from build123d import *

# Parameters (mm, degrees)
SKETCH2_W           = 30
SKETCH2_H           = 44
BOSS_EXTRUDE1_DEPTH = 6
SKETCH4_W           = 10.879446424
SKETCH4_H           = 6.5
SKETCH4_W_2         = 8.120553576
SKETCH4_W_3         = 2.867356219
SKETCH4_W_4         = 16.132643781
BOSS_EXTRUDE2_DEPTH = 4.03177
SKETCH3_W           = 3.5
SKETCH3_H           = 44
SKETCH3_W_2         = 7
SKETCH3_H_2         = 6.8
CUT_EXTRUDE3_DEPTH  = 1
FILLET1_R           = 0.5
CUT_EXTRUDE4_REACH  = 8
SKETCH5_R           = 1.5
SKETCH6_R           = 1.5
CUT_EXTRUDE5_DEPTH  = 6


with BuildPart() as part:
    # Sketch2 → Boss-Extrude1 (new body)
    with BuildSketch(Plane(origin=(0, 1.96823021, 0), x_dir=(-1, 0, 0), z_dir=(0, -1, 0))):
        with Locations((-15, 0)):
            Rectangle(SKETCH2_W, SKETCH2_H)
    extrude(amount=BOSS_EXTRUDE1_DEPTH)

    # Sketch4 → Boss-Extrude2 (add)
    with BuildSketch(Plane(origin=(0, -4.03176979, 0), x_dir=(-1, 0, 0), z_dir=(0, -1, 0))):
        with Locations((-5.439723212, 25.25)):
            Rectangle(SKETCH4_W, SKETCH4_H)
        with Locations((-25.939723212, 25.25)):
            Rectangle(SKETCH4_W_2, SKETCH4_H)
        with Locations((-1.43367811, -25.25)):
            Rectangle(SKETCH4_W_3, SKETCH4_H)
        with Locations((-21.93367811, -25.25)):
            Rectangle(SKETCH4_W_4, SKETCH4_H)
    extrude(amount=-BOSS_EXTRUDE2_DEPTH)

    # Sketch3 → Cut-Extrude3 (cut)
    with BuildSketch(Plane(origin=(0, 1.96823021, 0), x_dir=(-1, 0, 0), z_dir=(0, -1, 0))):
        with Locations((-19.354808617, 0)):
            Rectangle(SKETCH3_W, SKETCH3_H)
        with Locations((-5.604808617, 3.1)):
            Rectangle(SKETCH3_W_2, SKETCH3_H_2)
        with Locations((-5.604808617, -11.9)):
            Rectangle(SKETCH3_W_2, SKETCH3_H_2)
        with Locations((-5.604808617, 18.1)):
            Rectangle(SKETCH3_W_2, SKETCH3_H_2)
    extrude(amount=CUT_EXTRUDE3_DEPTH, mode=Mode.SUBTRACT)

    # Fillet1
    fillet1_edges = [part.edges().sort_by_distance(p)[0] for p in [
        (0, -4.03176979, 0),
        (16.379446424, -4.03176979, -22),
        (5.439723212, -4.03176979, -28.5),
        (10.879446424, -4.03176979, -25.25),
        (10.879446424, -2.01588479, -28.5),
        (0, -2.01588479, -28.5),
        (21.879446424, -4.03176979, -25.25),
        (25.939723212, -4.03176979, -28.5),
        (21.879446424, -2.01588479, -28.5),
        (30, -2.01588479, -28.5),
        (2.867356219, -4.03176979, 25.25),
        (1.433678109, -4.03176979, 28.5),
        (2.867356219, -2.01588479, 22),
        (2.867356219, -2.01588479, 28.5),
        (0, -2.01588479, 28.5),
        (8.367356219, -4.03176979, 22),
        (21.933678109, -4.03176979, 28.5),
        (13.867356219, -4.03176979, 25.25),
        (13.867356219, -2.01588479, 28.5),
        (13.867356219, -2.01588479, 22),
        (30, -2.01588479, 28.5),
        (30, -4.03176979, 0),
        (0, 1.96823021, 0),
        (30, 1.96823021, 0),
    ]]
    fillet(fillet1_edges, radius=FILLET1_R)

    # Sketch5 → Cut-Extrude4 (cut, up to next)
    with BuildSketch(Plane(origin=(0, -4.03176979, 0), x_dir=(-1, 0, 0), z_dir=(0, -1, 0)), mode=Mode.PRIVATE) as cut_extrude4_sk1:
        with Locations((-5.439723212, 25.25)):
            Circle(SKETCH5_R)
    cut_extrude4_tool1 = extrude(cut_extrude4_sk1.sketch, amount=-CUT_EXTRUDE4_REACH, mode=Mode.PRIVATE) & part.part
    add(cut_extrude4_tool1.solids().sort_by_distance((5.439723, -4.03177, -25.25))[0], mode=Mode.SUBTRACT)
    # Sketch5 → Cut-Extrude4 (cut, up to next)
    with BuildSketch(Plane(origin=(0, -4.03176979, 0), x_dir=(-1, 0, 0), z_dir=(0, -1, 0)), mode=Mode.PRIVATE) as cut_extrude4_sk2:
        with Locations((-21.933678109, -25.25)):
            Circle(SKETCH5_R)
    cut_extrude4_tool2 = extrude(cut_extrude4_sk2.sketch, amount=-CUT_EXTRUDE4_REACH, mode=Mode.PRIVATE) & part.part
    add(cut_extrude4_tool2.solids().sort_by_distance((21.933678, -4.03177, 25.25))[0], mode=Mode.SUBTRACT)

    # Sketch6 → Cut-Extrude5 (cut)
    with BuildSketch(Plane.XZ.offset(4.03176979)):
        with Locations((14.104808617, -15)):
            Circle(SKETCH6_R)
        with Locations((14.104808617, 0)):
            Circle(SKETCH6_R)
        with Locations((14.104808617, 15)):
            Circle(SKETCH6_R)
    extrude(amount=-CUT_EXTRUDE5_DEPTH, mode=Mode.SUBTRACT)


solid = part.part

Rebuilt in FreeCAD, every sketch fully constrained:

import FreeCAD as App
import Part
import Sketcher
from FreeCAD import Vector
Q = App.Units.Quantity


def edges_at(feature, points):
    """Names of the edges that pass closest to the given points."""
    edges = feature.Shape.Edges
    near = lambda p: min(range(len(edges)), key=lambda i: edges[i].distToShape(Part.Vertex(*p))[0])
    return sorted({f"Edge{near(p) + 1}" for p in points})

doc = App.newDocument("Part")
body = doc.addObject("PartDesign::Body", "Body")

# Sketch on XZ plane
sketch1 = body.newObject("Sketcher::SketchObject", "Sketch")
sketch1.AttachmentSupport = (doc.getObject("XZ_Plane"), [""])
sketch1.MapMode = "FlatFace"
sketch1.AttachmentOffset = App.Placement(Vector(0, 0, -1.96823), App.Rotation())
sketch1.addGeometry([
    Part.LineSegment(Vector(30, -22, 0), Vector(30, 22, 0)),
    Part.LineSegment(Vector(30, 22, 0), Vector(0, 22, 0)),
    Part.LineSegment(Vector(0, 22, 0), Vector(0, -22, 0)),
    Part.LineSegment(Vector(0, -22, 0), Vector(30, -22, 0)),
], False)
sketch1.addConstraint([
    Sketcher.Constraint("Coincident", 0, 2, 1, 1),
    Sketcher.Constraint("Coincident", 1, 2, 2, 1),
    Sketcher.Constraint("Coincident", 2, 2, 3, 1),
    Sketcher.Constraint("Coincident", 3, 2, 0, 1),
    Sketcher.Constraint("Vertical", 0),
    Sketcher.Constraint("Horizontal", 1),
    Sketcher.Constraint("Vertical", 2),
    Sketcher.Constraint("Horizontal", 3),
    Sketcher.Constraint("Symmetric", 1, 2, 2, 2, -1, 1),
    Sketcher.Constraint("DistanceX", 1, 2, 1, 1, Q("30 mm")),
    Sketcher.Constraint("DistanceY", 0, 1, 0, 2, Q("44 mm")),
])
pad1 = body.newObject("PartDesign::Pad", "Pad")
pad1.Profile = sketch1
pad1.Length = 6

# Sketch on XZ plane
sketch2 = body.newObject("Sketcher::SketchObject", "Sketch001")
sketch2.AttachmentSupport = (doc.getObject("XZ_Plane"), [""])
sketch2.MapMode = "FlatFace"
sketch2.AttachmentOffset = App.Placement(Vector(0, 0, 4.03177), App.Rotation())
sketch2.addGeometry([
    Part.LineSegment(Vector(10.9, -28.5, 0), Vector(10.9, -22, 0)),  # 0
    Part.LineSegment(Vector(10.9, -22, 0), Vector(0, -22, 0)),  # 1
    Part.LineSegment(Vector(0, -22, 0), Vector(0, -28.5, 0)),  # 2
    Part.LineSegment(Vector(0, -28.5, 0), Vector(10.9, -28.5, 0)),  # 3
    Part.LineSegment(Vector(30, -28.5, 0), Vector(30, -22, 0)),  # 4
    Part.LineSegment(Vector(30, -22, 0), Vector(21.9, -22, 0)),  # 5
    Part.LineSegment(Vector(21.9, -22, 0), Vector(21.9, -28.5, 0)),  # 6
    Part.LineSegment(Vector(21.9, -28.5, 0), Vector(30, -28.5, 0)),  # 7
    Part.LineSegment(Vector(2.9, 22, 0), Vector(2.9, 28.5, 0)),  # 8
    Part.LineSegment(Vector(2.9, 28.5, 0), Vector(0, 28.5, 0)),  # 9
    Part.LineSegment(Vector(0, 28.5, 0), Vector(0, 22, 0)),  # 10
    Part.LineSegment(Vector(0, 22, 0), Vector(2.9, 22, 0)),  # 11
    Part.LineSegment(Vector(30, 22, 0), Vector(30, 28.5, 0)),  # 12
    Part.LineSegment(Vector(30, 28.5, 0), Vector(13.9, 28.5, 0)),  # 13
    Part.LineSegment(Vector(13.9, 28.5, 0), Vector(13.9, 22, 0)),  # 14
    Part.LineSegment(Vector(13.9, 22, 0), Vector(30, 22, 0)),  # 15
], False)
sketch2.addConstraint([
    Sketcher.Constraint("Coincident", 0, 2, 1, 1),
    Sketcher.Constraint("Coincident", 1, 2, 2, 1),
    Sketcher.Constraint("Coincident", 2, 2, 3, 1),
    Sketcher.Constraint("Coincident", 3, 2, 0, 1),
    Sketcher.Constraint("Coincident", 4, 2, 5, 1),
    Sketcher.Constraint("Coincident", 5, 2, 6, 1),
    Sketcher.Constraint("Coincident", 6, 2, 7, 1),
    Sketcher.Constraint("Coincident", 7, 2, 4, 1),
    Sketcher.Constraint("Coincident", 8, 2, 9, 1),
    Sketcher.Constraint("Coincident", 9, 2, 10, 1),
    Sketcher.Constraint("Coincident", 10, 2, 11, 1),
    Sketcher.Constraint("Coincident", 11, 2, 8, 1),
    Sketcher.Constraint("Coincident", 12, 2, 13, 1),
    Sketcher.Constraint("Coincident", 13, 2, 14, 1),
    Sketcher.Constraint("Coincident", 14, 2, 15, 1),
    Sketcher.Constraint("Coincident", 15, 2, 12, 1),
    Sketcher.Constraint("Vertical", 0),
    Sketcher.Constraint("Horizontal", 1),
    Sketcher.Constraint("Vertical", 2),
    Sketcher.Constraint("Horizontal", 3),
    Sketcher.Constraint("Vertical", 4),
    Sketcher.Constraint("Horizontal", 5),
    Sketcher.Constraint("Vertical", 6),
    Sketcher.Constraint("Horizontal", 7),
    Sketcher.Constraint("Vertical", 8),
    Sketcher.Constraint("Horizontal", 9),
    Sketcher.Constraint("Vertical", 10),
    Sketcher.Constraint("Horizontal", 11),
    Sketcher.Constraint("Vertical", 12),
    Sketcher.Constraint("Horizontal", 13),
    Sketcher.Constraint("Vertical", 14),
    Sketcher.Constraint("Horizontal", 15),
    Sketcher.Constraint("Symmetric", 2, 2, 9, 2, -1, 1),
    Sketcher.Constraint("Symmetric", 1, 2, 10, 2, -1),
    Sketcher.Constraint("Symmetric", 7, 2, 12, 2, -1),
    Sketcher.Constraint("Horizontal", 1, 2, 4, 2),
    Sketcher.Constraint("Horizontal", 3, 2, 6, 2),
    Sketcher.Constraint("Horizontal", 11, 2, 14, 2),
    Sketcher.Constraint("DistanceY", 0, 1, 0, 2, Q("6.5 mm")),
    Sketcher.Constraint("DistanceY", 0, 2, -1, 1, Q("22 mm")),
    Sketcher.Constraint("DistanceX", -1, 1, 4, 2, Q("30 mm")),
    Sketcher.Constraint("DistanceX", 0, 2, 5, 2, Q("11 mm")),
    Sketcher.Constraint("DistanceX", 8, 2, 13, 2, Q("11 mm")),
    Sketcher.Constraint("DistanceX", 1, 2, 1, 1, Q("10.879446 mm")),
    Sketcher.Constraint("DistanceX", 9, 2, 9, 1, Q("2.867356 mm")),
])
pad2 = body.newObject("PartDesign::Pad", "Pad001")
pad2.Profile = sketch2
pad2.Length = 4.03177
pad2.Reversed = True

# Sketch on XZ plane
sketch3 = body.newObject("Sketcher::SketchObject", "Sketch002")
sketch3.AttachmentSupport = (doc.getObject("XZ_Plane"), [""])
sketch3.MapMode = "FlatFace"
sketch3.AttachmentOffset = App.Placement(Vector(0, 0, -1.96823), App.Rotation())
sketch3.addGeometry([
    Part.LineSegment(Vector(21.1, -22, 0), Vector(21.1, 22, 0)),  # 0
    Part.LineSegment(Vector(21.1, 22, 0), Vector(17.6, 22, 0)),  # 1
    Part.LineSegment(Vector(17.6, 22, 0), Vector(17.6, -22, 0)),  # 2
    Part.LineSegment(Vector(17.6, -22, 0), Vector(21.1, -22, 0)),  # 3
    Part.LineSegment(Vector(9.1, -6.5, 0), Vector(9.1, 0.3, 0)),  # 4
    Part.LineSegment(Vector(9.1, 0.3, 0), Vector(2.1, 0.3, 0)),  # 5
    Part.LineSegment(Vector(2.1, 0.3, 0), Vector(2.1, -6.5, 0)),  # 6
    Part.LineSegment(Vector(2.1, -6.5, 0), Vector(9.1, -6.5, 0)),  # 7
    Part.LineSegment(Vector(9.1, 8.5, 0), Vector(9.1, 15.3, 0)),  # 8
    Part.LineSegment(Vector(9.1, 15.3, 0), Vector(2.1, 15.3, 0)),  # 9
    Part.LineSegment(Vector(2.1, 15.3, 0), Vector(2.1, 8.5, 0)),  # 10
    Part.LineSegment(Vector(2.1, 8.5, 0), Vector(9.1, 8.5, 0)),  # 11
    Part.LineSegment(Vector(9.1, -21.5, 0), Vector(9.1, -14.7, 0)),  # 12
    Part.LineSegment(Vector(9.1, -14.7, 0), Vector(2.1, -14.7, 0)),  # 13
    Part.LineSegment(Vector(2.1, -14.7, 0), Vector(2.1, -21.5, 0)),  # 14
    Part.LineSegment(Vector(2.1, -21.5, 0), Vector(9.1, -21.5, 0)),  # 15
], False)
sketch3.addConstraint([
    Sketcher.Constraint("Coincident", 0, 2, 1, 1),
    Sketcher.Constraint("Coincident", 1, 2, 2, 1),
    Sketcher.Constraint("Coincident", 2, 2, 3, 1),
    Sketcher.Constraint("Coincident", 3, 2, 0, 1),
    Sketcher.Constraint("Coincident", 4, 2, 5, 1),
    Sketcher.Constraint("Coincident", 5, 2, 6, 1),
    Sketcher.Constraint("Coincident", 6, 2, 7, 1),
    Sketcher.Constraint("Coincident", 7, 2, 4, 1),
    Sketcher.Constraint("Coincident", 8, 2, 9, 1),
    Sketcher.Constraint("Coincident", 9, 2, 10, 1),
    Sketcher.Constraint("Coincident", 10, 2, 11, 1),
    Sketcher.Constraint("Coincident", 11, 2, 8, 1),
    Sketcher.Constraint("Coincident", 12, 2, 13, 1),
    Sketcher.Constraint("Coincident", 13, 2, 14, 1),
    Sketcher.Constraint("Coincident", 14, 2, 15, 1),
    Sketcher.Constraint("Coincident", 15, 2, 12, 1),
    Sketcher.Constraint("Vertical", 0),
    Sketcher.Constraint("Horizontal", 1),
    Sketcher.Constraint("Vertical", 2),
    Sketcher.Constraint("Horizontal", 3),
    Sketcher.Constraint("Vertical", 4),
    Sketcher.Constraint("Horizontal", 5),
    Sketcher.Constraint("Vertical", 6),
    Sketcher.Constraint("Horizontal", 7),
    Sketcher.Constraint("Vertical", 8),
    Sketcher.Constraint("Horizontal", 9),
    Sketcher.Constraint("Vertical", 10),
    Sketcher.Constraint("Horizontal", 11),
    Sketcher.Constraint("Vertical", 12),
    Sketcher.Constraint("Horizontal", 13),
    Sketcher.Constraint("Vertical", 14),
    Sketcher.Constraint("Horizontal", 15),
    Sketcher.Constraint("Vertical", 7, 2, 8, 2),
    Sketcher.Constraint("Vertical", 6, 2, 9, 2),
    Sketcher.Constraint("Vertical", 11, 2, 12, 2),
    Sketcher.Constraint("Vertical", 10, 2, 13, 2),
    Sketcher.Constraint("Equal", 6, 8),
    Sketcher.Constraint("Equal", 10, 12),
    Sketcher.Constraint("DistanceX", 5, 2, 5, 1, Q("7 mm")),
    Sketcher.Constraint("DistanceY", 0, 1, 0, 2, Q("44 mm")),
    Sketcher.Constraint("DistanceX", 1, 2, 1, 1, Q("3.5 mm")),
    Sketcher.Constraint("DistanceY", 4, 1, 4, 2, Q("6.8 mm")),
    Sketcher.Constraint("DistanceY", -1, 1, 0, 2, Q("22 mm")),
    Sketcher.Constraint("DistanceX", 4, 2, 0, 2, Q("12 mm")),
    Sketcher.Constraint("DistanceY", 4, 2, 8, 2, Q("15 mm")),
    Sketcher.Constraint("DistanceY", 12, 2, 4, 2, Q("15 mm")),
    Sketcher.Constraint("DistanceY", -1, 1, 4, 2, Q("0.3 mm")),
    Sketcher.Constraint("DistanceX", -1, 1, 0, 2, Q("21.104809 mm")),
])
pocket1 = body.newObject("PartDesign::Pocket", "Pocket")
pocket1.Profile = sketch3
pocket1.Length = 1
pocket1.Reversed = True
doc.recompute()

fillet = body.newObject("PartDesign::Fillet", "Fillet")
fillet.Base = (pocket1, edges_at(pocket1, [
    (0, -4.032, -3.25),
    (16.379, -4.032, -22),
    (5.44, -4.032, -28.5),
    (10.879, -4.032, -25.25),
    (10.879, -2.016, -28.5),
    (0, -2.016, -28.5),
    (21.879, -4.032, -25.25),
    (25.94, -4.032, -28.5),
    (21.879, -2.016, -28.5),
    (30, -2.016, -28.5),
    (2.867, -4.032, 25.25),
    (1.434, -4.032, 28.5),
    (2.867, -2.016, 22),
    (2.867, -2.016, 28.5),
    (0, -2.016, 28.5),
    (8.367, -4.032, 22),
    (21.934, -4.032, 28.5),
    (13.867, -4.032, 25.25),
    (13.867, -2.016, 28.5),
    (13.867, -2.016, 22),
    (30, -2.016, 28.5),
    (30, -4.032, -3.25),
    (0, 1.968, 0),
    (30, 1.968, 0),
]))
fillet.Radius = 0.5

# Sketch on XZ plane
sketch4 = body.newObject("Sketcher::SketchObject", "Sketch003")
sketch4.AttachmentSupport = (doc.getObject("XZ_Plane"), [""])
sketch4.MapMode = "FlatFace"
sketch4.AttachmentOffset = App.Placement(Vector(0, 0, 4.03177), App.Rotation())
sketch4.addGeometry(Part.Circle(Vector(5.4, -25.2, 0), Vector(0, 0, 1), 1.5), False)
sketch4.addConstraint([
    Sketcher.Constraint("Diameter", 0, Q("3 mm")),
    Sketcher.Constraint("DistanceY", 0, 3, -1, 1, Q("25.25 mm")),
    Sketcher.Constraint("DistanceX", -1, 1, 0, 3, Q("5.439723 mm")),
])
pocket2 = body.newObject("PartDesign::Pocket", "Pocket001")
pocket2.Profile = sketch4
pocket2.Type = "UpToFirst"

# Sketch on XZ plane
sketch5 = body.newObject("Sketcher::SketchObject", "Sketch004")
sketch5.AttachmentSupport = (doc.getObject("XZ_Plane"), [""])
sketch5.MapMode = "FlatFace"
sketch5.AttachmentOffset = App.Placement(Vector(0, 0, 4.03177), App.Rotation())
sketch5.addGeometry(Part.Circle(Vector(21.9, 25.2, 0), Vector(0, 0, 1), 1.5), False)
sketch5.addConstraint([
    Sketcher.Constraint("Diameter", 0, Q("3 mm")),
    Sketcher.Constraint("DistanceY", -1, 1, 0, 3, Q("25.25 mm")),
    Sketcher.Constraint("DistanceX", -1, 1, 0, 3, Q("21.933678 mm")),
])
pocket3 = body.newObject("PartDesign::Pocket", "Pocket002")
pocket3.Profile = sketch5
pocket3.Type = "UpToFirst"

# Sketch on XZ plane
sketch6 = body.newObject("Sketcher::SketchObject", "Sketch005")
sketch6.AttachmentSupport = (doc.getObject("XZ_Plane"), [""])
sketch6.MapMode = "FlatFace"
sketch6.AttachmentOffset = App.Placement(Vector(0, 0, 4.03177), App.Rotation())
sketch6.addGeometry([
    Part.Circle(Vector(14.1, -15, 0), Vector(0, 0, 1), 1.5),
    Part.Circle(Vector(14.1, 0, 0), Vector(0, 0, 1), 1.5),
    Part.Circle(Vector(14.1, 15, 0), Vector(0, 0, 1), 1.5),
], False)
sketch6.addConstraint([
    Sketcher.Constraint("Equal", 0, 1),
    Sketcher.Constraint("Equal", 1, 2),
    Sketcher.Constraint("Symmetric", 0, 3, 2, 3, -1),
    Sketcher.Constraint("PointOnObject", 1, 3, -1),
    Sketcher.Constraint("Vertical", 0, 3, 1, 3),
    Sketcher.Constraint("Diameter", 0, Q("3 mm")),
    Sketcher.Constraint("DistanceY", 0, 3, -1, 1, Q("15 mm")),
    Sketcher.Constraint("DistanceX", -1, 1, 0, 3, Q("14.104809 mm")),
])
pocket4 = body.newObject("PartDesign::Pocket", "Pocket003")
pocket4.Profile = sketch6
pocket4.Length = 6

doc.recompute()
